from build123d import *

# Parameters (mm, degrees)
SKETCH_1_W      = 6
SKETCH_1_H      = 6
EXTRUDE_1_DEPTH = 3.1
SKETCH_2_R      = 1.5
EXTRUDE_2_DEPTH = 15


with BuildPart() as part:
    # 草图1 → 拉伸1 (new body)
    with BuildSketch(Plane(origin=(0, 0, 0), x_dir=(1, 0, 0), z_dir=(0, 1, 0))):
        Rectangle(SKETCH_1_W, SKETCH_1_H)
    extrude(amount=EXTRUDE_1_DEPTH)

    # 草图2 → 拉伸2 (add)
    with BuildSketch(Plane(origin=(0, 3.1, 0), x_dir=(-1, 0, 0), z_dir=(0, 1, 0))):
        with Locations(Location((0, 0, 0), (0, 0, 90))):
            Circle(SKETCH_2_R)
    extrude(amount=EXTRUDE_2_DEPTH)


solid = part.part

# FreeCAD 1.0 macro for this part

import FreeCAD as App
import Part
import Sketcher
from FreeCAD import Vector
Q = App.Units.Quantity


def add_polygon(sketch, points):
    """Adds a closed chain of lines whose ends are joined by coincident constraints."""
    first, n = sketch.GeometryCount, len(points)
    for a, b in zip(points, points[1:] + points[:1]):
        sketch.addGeometry(Part.LineSegment(App.Vector(*a, 0), App.Vector(*b, 0)), False)
    for i in range(n):
        sketch.addConstraint(Sketcher.Constraint("Coincident", first + i, 2, first + (i + 1) % n, 1))

doc = App.newDocument("Part")
params = doc.addObject("Spreadsheet::Sheet", "Params")
for row, (alias, value) in enumerate([
    ("sketch1_width", "6 mm"),
    ("pad1_length", "3.1 mm"),
    ("sketch2_diameter", "3 mm"),
    ("pad2_length", "15 mm"),
], start=1):
    params.set(f"A{row}", alias)
    params.set(f"B{row}", "=" + value)
    params.setAlias(f"B{row}", alias)

body = doc.addObject("PartDesign::Body", "Body")

sketch1 = doc.addObject("Sketcher::SketchObject", "Sketch")
body.addObject(sketch1)
sketch1.AttachmentSupport = (doc.XZ_Plane, [""])
sketch1.MapMode = "FlatFace"
add_polygon(sketch1, [(-3, -3), (-3, 3), (3, 3), (3, -3)])
sketch1.addConstraint([
    Sketcher.Constraint("Vertical", 0),
    Sketcher.Constraint("Horizontal", 1),
    Sketcher.Constraint("Vertical", 2),
    Sketcher.Constraint("Horizontal", 3),
    Sketcher.Constraint("Symmetric", 0, 2, 2, 2, -1, 1),
    Sketcher.Constraint("Equal", 3, 0),
    Sketcher.Constraint("DistanceX", 1, 1, 1, 2, Q("6 mm")),
])
sketch1.setExpression("Constraints[10]", "Params.sketch1_width")
pad1 = doc.addObject("PartDesign::Pad", "Pad")
body.addObject(pad1)
pad1.Profile = sketch1
pad1.setExpression("Length", "Params.pad1_length")
pad1.Reversed = True

sketch2 = doc.addObject("Sketcher::SketchObject", "Sketch001")
body.addObject(sketch2)
sketch2.AttachmentSupport = (doc.XZ_Plane, [""])
sketch2.MapMode = "FlatFace"
sketch2.AttachmentOffset = App.Placement(Vector(0, 0, -3.1), App.Rotation())
sketch2.addGeometry(Part.Circle(Vector(0, 0, 0), Vector(0, 0, 1), 1.5), False)
sketch2.addConstraint([
    Sketcher.Constraint("Coincident", 0, 3, -1, 1),
    Sketcher.Constraint("Diameter", 0, Q("3 mm")),
])
sketch2.setExpression("Constraints[1]", "Params.sketch2_diameter")
pad2 = doc.addObject("PartDesign::Pad", "Pad001")
body.addObject(pad2)
pad2.Profile = sketch2
pad2.setExpression("Length", "Params.pad2_length")
pad2.Reversed = True

doc.recompute()
